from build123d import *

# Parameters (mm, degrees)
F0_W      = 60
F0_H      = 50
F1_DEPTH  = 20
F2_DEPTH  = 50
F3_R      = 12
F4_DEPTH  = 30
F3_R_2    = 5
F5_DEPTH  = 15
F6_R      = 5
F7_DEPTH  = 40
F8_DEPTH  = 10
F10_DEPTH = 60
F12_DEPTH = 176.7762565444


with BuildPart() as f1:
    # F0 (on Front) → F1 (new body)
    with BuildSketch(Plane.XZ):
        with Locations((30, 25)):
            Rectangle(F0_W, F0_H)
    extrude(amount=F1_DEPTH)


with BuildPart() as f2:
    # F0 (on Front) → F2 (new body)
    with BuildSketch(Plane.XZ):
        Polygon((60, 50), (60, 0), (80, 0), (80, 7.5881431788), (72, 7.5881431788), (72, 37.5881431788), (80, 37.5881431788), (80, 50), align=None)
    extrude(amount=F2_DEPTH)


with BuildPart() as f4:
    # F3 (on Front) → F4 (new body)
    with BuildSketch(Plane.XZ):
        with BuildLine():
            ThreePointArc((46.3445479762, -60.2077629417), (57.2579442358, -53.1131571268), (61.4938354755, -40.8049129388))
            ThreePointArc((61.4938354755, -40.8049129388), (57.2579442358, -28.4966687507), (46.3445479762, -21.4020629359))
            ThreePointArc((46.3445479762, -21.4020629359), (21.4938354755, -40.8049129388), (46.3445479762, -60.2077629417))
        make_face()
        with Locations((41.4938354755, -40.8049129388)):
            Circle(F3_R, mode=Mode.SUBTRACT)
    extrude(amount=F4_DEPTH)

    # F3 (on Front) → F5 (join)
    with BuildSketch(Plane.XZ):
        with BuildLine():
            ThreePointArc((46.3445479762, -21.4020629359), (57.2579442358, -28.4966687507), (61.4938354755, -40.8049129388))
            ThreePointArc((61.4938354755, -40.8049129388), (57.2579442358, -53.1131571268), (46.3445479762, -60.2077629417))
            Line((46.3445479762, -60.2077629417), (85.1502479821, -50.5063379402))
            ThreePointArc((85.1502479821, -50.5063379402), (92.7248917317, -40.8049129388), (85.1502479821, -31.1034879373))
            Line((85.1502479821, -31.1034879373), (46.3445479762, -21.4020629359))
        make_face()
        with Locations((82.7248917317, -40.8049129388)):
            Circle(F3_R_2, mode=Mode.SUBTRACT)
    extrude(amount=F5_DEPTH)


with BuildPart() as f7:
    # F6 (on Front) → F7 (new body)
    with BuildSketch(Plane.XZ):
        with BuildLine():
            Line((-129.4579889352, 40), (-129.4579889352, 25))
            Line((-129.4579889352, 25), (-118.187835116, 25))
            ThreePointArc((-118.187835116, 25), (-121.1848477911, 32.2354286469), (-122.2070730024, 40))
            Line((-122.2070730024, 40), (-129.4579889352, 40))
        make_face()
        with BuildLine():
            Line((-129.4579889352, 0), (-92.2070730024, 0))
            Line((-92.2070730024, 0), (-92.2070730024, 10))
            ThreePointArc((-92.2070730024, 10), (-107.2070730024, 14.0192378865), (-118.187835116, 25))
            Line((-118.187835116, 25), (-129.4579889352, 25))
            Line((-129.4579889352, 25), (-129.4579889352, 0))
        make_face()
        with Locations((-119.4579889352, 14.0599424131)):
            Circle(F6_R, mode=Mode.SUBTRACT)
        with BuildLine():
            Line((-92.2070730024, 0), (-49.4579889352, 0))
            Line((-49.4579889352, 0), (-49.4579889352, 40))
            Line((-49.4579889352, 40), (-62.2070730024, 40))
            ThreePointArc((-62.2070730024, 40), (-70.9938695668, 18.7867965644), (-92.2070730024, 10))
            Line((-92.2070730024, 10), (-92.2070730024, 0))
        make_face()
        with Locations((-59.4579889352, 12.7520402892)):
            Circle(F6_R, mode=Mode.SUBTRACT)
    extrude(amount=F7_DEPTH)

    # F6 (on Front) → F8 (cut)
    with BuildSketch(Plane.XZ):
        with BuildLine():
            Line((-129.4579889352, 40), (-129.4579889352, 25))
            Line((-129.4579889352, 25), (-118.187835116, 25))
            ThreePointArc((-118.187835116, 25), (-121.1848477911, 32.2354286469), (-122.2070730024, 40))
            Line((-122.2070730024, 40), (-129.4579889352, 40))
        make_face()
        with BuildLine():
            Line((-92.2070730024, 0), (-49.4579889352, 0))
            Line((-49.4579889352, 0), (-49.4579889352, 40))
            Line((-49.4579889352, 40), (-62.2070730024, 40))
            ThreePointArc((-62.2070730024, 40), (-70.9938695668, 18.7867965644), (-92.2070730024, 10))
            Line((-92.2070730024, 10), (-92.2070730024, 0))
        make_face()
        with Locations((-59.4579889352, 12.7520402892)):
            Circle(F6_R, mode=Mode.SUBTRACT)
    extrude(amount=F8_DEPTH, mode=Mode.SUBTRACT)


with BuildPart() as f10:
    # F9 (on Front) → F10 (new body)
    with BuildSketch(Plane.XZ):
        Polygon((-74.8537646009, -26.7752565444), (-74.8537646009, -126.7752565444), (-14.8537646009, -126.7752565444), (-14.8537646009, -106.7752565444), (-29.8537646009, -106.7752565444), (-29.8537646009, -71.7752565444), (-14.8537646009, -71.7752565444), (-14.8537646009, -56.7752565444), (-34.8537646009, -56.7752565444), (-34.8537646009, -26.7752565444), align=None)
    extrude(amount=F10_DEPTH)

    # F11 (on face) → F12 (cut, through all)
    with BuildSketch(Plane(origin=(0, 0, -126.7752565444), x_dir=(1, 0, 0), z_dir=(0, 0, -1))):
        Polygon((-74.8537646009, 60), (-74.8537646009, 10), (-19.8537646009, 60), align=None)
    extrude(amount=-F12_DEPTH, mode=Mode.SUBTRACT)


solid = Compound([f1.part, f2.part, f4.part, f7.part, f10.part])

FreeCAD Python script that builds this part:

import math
import FreeCAD as App
import Part
import Sketcher

V = App.Vector
Q = App.Units.Quantity

doc = App.newDocument("Part")
body = doc.addObject("PartDesign::Body", "Body")

# Sketch on XZ plane
sketch1 = doc.addObject("Sketcher::SketchObject", "Sketch")
body.addObject(sketch1)
sketch1.AttachmentSupport = (doc.XZ_Plane, [""])
sketch1.MapMode = "FlatFace"
sketch1.addGeometry([
    Part.LineSegment(V(0, 50, 0), V(0, 0, 0)),
    Part.LineSegment(V(0, 0, 0), V(60, 0, 0)),
    Part.LineSegment(V(60, 0, 0), V(60, 50, 0)),
    Part.LineSegment(V(60, 50, 0), V(0, 50, 0)),
], False)
sketch1.addConstraint([
    Sketcher.Constraint("Coincident", 0, 2, 1, 1),
    Sketcher.Constraint("Coincident", 1, 2, 2, 1),
    Sketcher.Constraint("Coincident", 2, 2, 3, 1),
    Sketcher.Constraint("Coincident", 3, 2, 0, 1),
    Sketcher.Constraint("Vertical", 0),
    Sketcher.Constraint("Horizontal", 1),
    Sketcher.Constraint("Vertical", 2),
    Sketcher.Constraint("Horizontal", 3),
    Sketcher.Constraint("Coincident", 0, 2, -1, 1),
    Sketcher.Constraint("DistanceX", 1, 1, 1, 2, Q("60 mm")),
    Sketcher.Constraint("DistanceY", 0, 2, 0, 1, Q("50 mm")),
])
pad1 = doc.addObject("PartDesign::Pad", "Pad")
body.addObject(pad1)
pad1.Profile = sketch1
pad1.Length = 20
body2 = doc.addObject("PartDesign::Body", "Body001")

# Sketch on XZ plane
sketch2 = doc.addObject("Sketcher::SketchObject", "Sketch001")
body2.addObject(sketch2)
sketch2.AttachmentSupport = (doc.getObject("XZ_Plane001"), [""])
sketch2.MapMode = "FlatFace"
sketch2.addGeometry([
    Part.LineSegment(V(60, 50, 0), V(60, 0, 0)),  # 0
    Part.LineSegment(V(60, 0, 0), V(80, 0, 0)),  # 1
    Part.LineSegment(V(80, 0, 0), V(80, 8, 0)),  # 2
    Part.LineSegment(V(80, 8, 0), V(72, 8, 0)),  # 3
    Part.LineSegment(V(72, 8, 0), V(72, 38, 0)),  # 4
    Part.LineSegment(V(72, 38, 0), V(80, 38, 0)),  # 5
    Part.LineSegment(V(80, 38, 0), V(80, 50, 0)),  # 6
    Part.LineSegment(V(80, 50, 0), V(60, 50, 0)),  # 7
], False)
sketch2.addConstraint([
    Sketcher.Constraint("Coincident", 0, 2, 1, 1),
    Sketcher.Constraint("Coincident", 1, 2, 2, 1),
    Sketcher.Constraint("Coincident", 2, 2, 3, 1),
    Sketcher.Constraint("Coincident", 3, 2, 4, 1),
    Sketcher.Constraint("Coincident", 4, 2, 5, 1),
    Sketcher.Constraint("Coincident", 5, 2, 6, 1),
    Sketcher.Constraint("Coincident", 6, 2, 7, 1),
    Sketcher.Constraint("Coincident", 7, 2, 0, 1),
    Sketcher.Constraint("Vertical", 0),
    Sketcher.Constraint("Horizontal", 1),
    Sketcher.Constraint("Vertical", 2),
    Sketcher.Constraint("Horizontal", 3),
    Sketcher.Constraint("Vertical", 4),
    Sketcher.Constraint("Horizontal", 5),
    Sketcher.Constraint("Vertical", 6),
    Sketcher.Constraint("Horizontal", 7),
    Sketcher.Constraint("PointOnObject", 0, 2, -1),
    Sketcher.Constraint("Vertical", 2, 2, 5, 2),
    Sketcher.Constraint("DistanceX", 1, 1, 1, 2, Q("20 mm")),
    Sketcher.Constraint("DistanceX", 3, 2, 3, 1, Q("8 mm")),
    Sketcher.Constraint("DistanceY", 0, 2, 0, 1, Q("50 mm")),
    Sketcher.Constraint("DistanceY", 4, 1, 4, 2, Q("30 mm")),
    Sketcher.Constraint("DistanceX", -1, 1, 0, 2, Q("60 mm")),
    Sketcher.Constraint("DistanceY", 2, 1, 2, 2, Q("7.588143 mm")),
])
pad2 = doc.addObject("PartDesign::Pad", "Pad001")
body2.addObject(pad2)
pad2.Profile = sketch2
pad2.Length = 50
body3 = doc.addObject("PartDesign::Body", "Body002")

# Sketch on XZ plane
sketch3 = doc.addObject("Sketcher::SketchObject", "Sketch002")
body3.addObject(sketch3)
sketch3.AttachmentSupport = (doc.getObject("XZ_Plane002"), [""])
sketch3.MapMode = "FlatFace"
sketch3.addGeometry([
    Part.ArcOfCircle(Part.Circle(V(41, -41, 0), V(0, 0, 1), 20), math.radians(-76), math.radians(0)),
    Part.ArcOfCircle(Part.Circle(V(41, -41, 0), V(0, 0, 1), 20), math.radians(0), math.radians(76)),
    Part.ArcOfCircle(Part.Circle(V(41, -41, 0), V(0, 0, 1), 20), math.radians(76), math.radians(284)),
    Part.Circle(V(41, -41, 0), V(0, 0, 1), 12),
], False)
sketch3.addConstraint([
    Sketcher.Constraint("Tangent", 0, 2, 1, 1),
    Sketcher.Constraint("Tangent", 1, 2, 2, 1),
    Sketcher.Constraint("Tangent", 2, 2, 0, 1),
    Sketcher.Constraint("Coincident", 3, 3, 0, 3),
    Sketcher.Constraint("Horizontal", 3, 3, 0, 2),
    Sketcher.Constraint("Vertical", 1, 2, 2, 2),
    Sketcher.Constraint("Diameter", 3, Q("24 mm")),
    Sketcher.Constraint("Radius", 0, Q("20 mm")),
    Sketcher.Constraint("DistanceY", 1, 3, 1, 2, Q("19.40285 mm")),
    Sketcher.Constraint("DistanceX", -1, 1, 0, 3, Q("41.493835 mm")),
    Sketcher.Constraint("DistanceY", 0, 3, -1, 1, Q("40.804913 mm")),
])
pad3 = doc.addObject("PartDesign::Pad", "Pad002")
body3.addObject(pad3)
pad3.Profile = sketch3
pad3.Length = 30

# Sketch on XZ plane
sketch4 = doc.addObject("Sketcher::SketchObject", "Sketch003")
body3.addObject(sketch4)
sketch4.AttachmentSupport = (doc.getObject("XZ_Plane002"), [""])
sketch4.MapMode = "FlatFace"
sketch4.addGeometry([
    Part.ArcOfCircle(Part.Circle(V(41, -41, 0), V(0, 0, 1), 20), math.radians(0), math.radians(76)),  # 0
    Part.ArcOfCircle(Part.Circle(V(41, -41, 0), V(0, 0, 1), 20), math.radians(-76), math.radians(0)),  # 1
    Part.LineSegment(V(46, -60, 0), V(85, -51, 0)),  # 2
    Part.ArcOfCircle(Part.Circle(V(83, -41, 0), V(0, 0, 1), 10), math.radians(-76), math.radians(76)),  # 3
    Part.LineSegment(V(85, -31, 0), V(46, -21, 0)),  # 4
    Part.Circle(V(83, -41, 0), V(0, 0, 1), 5),  # 5
], False)
sketch4.addConstraint([
    Sketcher.Constraint("Tangent", 0, 1, 1, 2),
    Sketcher.Constraint("Tangent", 1, 1, 2, 1),
    Sketcher.Constraint("Tangent", 2, 2, 3, 1),
    Sketcher.Constraint("Tangent", 3, 2, 4, 1),
    Sketcher.Constraint("Tangent", 4, 2, 0, 2),
    Sketcher.Constraint("Coincident", 5, 3, 3, 3),
    Sketcher.Constraint("Equal", 0, 1),
    Sketcher.Constraint("Horizontal", 1, 3, 3, 3),
    Sketcher.Constraint("Horizontal", 5, 3, 0, 1),
    Sketcher.Constraint("Diameter", 5, Q("10 mm")),
    Sketcher.Constraint("Radius", 0, Q("20 mm")),
    Sketcher.Constraint("Radius", 3, Q("10 mm")),
    Sketcher.Constraint("Distance", 2, Q("40 mm")),
    Sketcher.Constraint("DistanceX", -1, 1, 3, 3, Q("82.724892 mm")),
    Sketcher.Constraint("DistanceY", 0, 3, -1, 1, Q("40.804913 mm")),
])
pad4 = doc.addObject("PartDesign::Pad", "Pad003")
body3.addObject(pad4)
pad4.Profile = sketch4
pad4.Length = 15
body4 = doc.addObject("PartDesign::Body", "Body003")

# Sketch on XZ plane
sketch5 = doc.addObject("Sketcher::SketchObject", "Sketch004")
body4.addObject(sketch5)
sketch5.AttachmentSupport = (doc.getObject("XZ_Plane003"), [""])
sketch5.MapMode = "FlatFace"
sketch5.addGeometry([
    Part.LineSegment(V(-129, 40, 0), V(-129, 0, 0)),  # 0
    Part.LineSegment(V(-129, 0, 0), V(-49, 0, 0)),  # 1
    Part.LineSegment(V(-49, 0, 0), V(-49, 40, 0)),  # 2
    Part.LineSegment(V(-49, 40, 0), V(-62, 40, 0)),  # 3
    Part.ArcOfCircle(Part.Circle(V(-92, 40, 0), V(0, 0, 1), 30), math.radians(-90), math.radians(0)),  # 4
    Part.ArcOfCircle(Part.Circle(V(-92, 40, 0), V(0, 0, 1), 30), math.radians(-150), math.radians(-90)),  # 5
    Part.ArcOfCircle(Part.Circle(V(-92, 40, 0), V(0, 0, 1), 30), math.radians(180), math.radians(210)),  # 6
    Part.LineSegment(V(-122, 40, 0), V(-129, 40, 0)),  # 7
    Part.Circle(V(-59, 13, 0), V(0, 0, 1), 5),  # 8
    Part.Circle(V(-119, 14, 0), V(0, 0, 1), 5),  # 9
], False)
sketch5.addConstraint([
    Sketcher.Constraint("Coincident", 0, 2, 1, 1),
    Sketcher.Constraint("Coincident", 1, 2, 2, 1),
    Sketcher.Constraint("Coincident", 2, 2, 3, 1),
    Sketcher.Constraint("Coincident", 3, 2, 4, 2),
    Sketcher.Constraint("Tangent", 4, 1, 5, 2),
    Sketcher.Constraint("Tangent", 5, 1, 6, 2),
    Sketcher.Constraint("Coincident", 6, 1, 7, 1),
    Sketcher.Constraint("Coincident", 7, 2, 0, 1),
    Sketcher.Constraint("Vertical", 0),
    Sketcher.Constraint("Horizontal", 1),
    Sketcher.Constraint("Vertical", 2),
    Sketcher.Constraint("Horizontal", 3),
    Sketcher.Constraint("Horizontal", 7),
    Sketcher.Constraint("Coincident", 6, 3, 4, 3),
    Sketcher.Constraint("Equal", 8, 9),
    Sketcher.Constraint("PointOnObject", 0, 2, -1),
    Sketcher.Constraint("Horizontal", 6, 3, 2, 2),
    Sketcher.Constraint("Horizontal", 3, 2, 6, 1),
    Sketcher.Constraint("Vertical", 6, 3, 4, 1),
    Sketcher.Constraint("Diameter", 8, Q("10 mm")),
    Sketcher.Constraint("Radius", 4, Q("30 mm")),
    Sketcher.Constraint("DistanceX", 1, 1, 1, 2, Q("80 mm")),
    Sketcher.Constraint("DistanceY", 0, 2, 0, 1, Q("40 mm")),
    Sketcher.Constraint("DistanceY", -1, 1, 5, 1, Q("25 mm")),
    Sketcher.Constraint("DistanceX", 9, 3, 8, 3, Q("60 mm")),
    Sketcher.Constraint("DistanceX", 0, 2, 9, 3, Q("10 mm")),
    Sketcher.Constraint("DistanceX", 3, 2, 3, 1, Q("12.749084 mm")),
    Sketcher.Constraint("DistanceX", 8, 3, -1, 1, Q("59.457989 mm")),
    Sketcher.Constraint("DistanceY", -1, 1, 8, 3, Q("12.75204 mm")),
    Sketcher.Constraint("DistanceY", -1, 1, 9, 3, Q("14.059942 mm")),
])
pad5 = doc.addObject("PartDesign::Pad", "Pad004")
body4.addObject(pad5)
pad5.Profile = sketch5
pad5.Length = 40

# Sketch on XZ plane
sketch6 = doc.addObject("Sketcher::SketchObject", "Sketch005")
body4.addObject(sketch6)
sketch6.AttachmentSupport = (doc.getObject("XZ_Plane003"), [""])
sketch6.MapMode = "FlatFace"
sketch6.addGeometry([
    Part.LineSegment(V(-129, 40, 0), V(-129, 25, 0)),  # 0
    Part.LineSegment(V(-129, 25, 0), V(-118, 25, 0)),  # 1
    Part.ArcOfCircle(Part.Circle(V(-92, 40, 0), V(0, 0, 1), 30), math.radians(180), math.radians(210)),  # 2
    Part.LineSegment(V(-122, 40, 0), V(-129, 40, 0)),  # 3
    Part.LineSegment(V(-92, 0, 0), V(-49, 0, 0)),  # 4
    Part.LineSegment(V(-49, 0, 0), V(-49, 40, 0)),  # 5
    Part.LineSegment(V(-49, 40, 0), V(-62, 40, 0)),  # 6
    Part.ArcOfCircle(Part.Circle(V(-92, 40, 0), V(0, 0, 1), 30), math.radians(-90), math.radians(0)),  # 7
    Part.LineSegment(V(-92, 10, 0), V(-92, 0, 0)),  # 8
    Part.Circle(V(-59, 13, 0), V(0, 0, 1), 5),  # 9
], False)
sketch6.addConstraint([
    Sketcher.Constraint("Coincident", 0, 2, 1, 1),
    Sketcher.Constraint("Coincident", 1, 2, 2, 2),
    Sketcher.Constraint("Coincident", 2, 1, 3, 1),
    Sketcher.Constraint("Coincident", 3, 2, 0, 1),
    Sketcher.Constraint("Coincident", 4, 2, 5, 1),
    Sketcher.Constraint("Coincident", 5, 2, 6, 1),
    Sketcher.Constraint("Coincident", 6, 2, 7, 2),
    Sketcher.Constraint("Coincident", 7, 1, 8, 1),
    Sketcher.Constraint("Coincident", 8, 2, 4, 1),
    Sketcher.Constraint("Vertical", 0),
    Sketcher.Constraint("Horizontal", 1),
    Sketcher.Constraint("Horizontal", 3),
    Sketcher.Constraint("Horizontal", 4),
    Sketcher.Constraint("Vertical", 5),
    Sketcher.Constraint("Horizontal", 6),
    Sketcher.Constraint("Vertical", 8),
    Sketcher.Constraint("Coincident", 7, 3, 2, 3),
    Sketcher.Constraint("Equal", 2, 7),
    Sketcher.Constraint("PointOnObject", 4, 2, -1),
    Sketcher.Constraint("Horizontal", 7, 3, 2, 1),
    Sketcher.Constraint("Horizontal", 3, 2, 5, 2),
    Sketcher.Constraint("Vertical", 2, 3, 7, 1),
    Sketcher.Constraint("Diameter", 9, Q("10 mm")),
    Sketcher.Constraint("Radius", 2, Q("30 mm")),
    Sketcher.Constraint("DistanceY", 0, 2, 0, 1, Q("15 mm")),
    Sketcher.Constraint("DistanceY", 5, 1, 5, 2, Q("40 mm")),
    Sketcher.Constraint("DistanceX", 0, 2, 9, 3, Q("70 mm")),
    Sketcher.Constraint("DistanceX", 9, 3, 4, 2, Q("10 mm")),
    Sketcher.Constraint("DistanceX", 1, 1, 1, 2, Q("11.270154 mm")),
    Sketcher.Constraint("DistanceX", 9, 3, -1, 1, Q("59.457989 mm")),
    Sketcher.Constraint("DistanceY", -1, 1, 9, 3, Q("12.75204 mm")),
])
pocket1 = doc.addObject("PartDesign::Pocket", "Pocket")
body4.addObject(pocket1)
pocket1.Profile = sketch6
pocket1.Length = 10
pocket1.Reversed = True
body5 = doc.addObject("PartDesign::Body", "Body004")

# Sketch on XZ plane
sketch7 = doc.addObject("Sketcher::SketchObject", "Sketch006")
body5.addObject(sketch7)
sketch7.AttachmentSupport = (doc.getObject("XZ_Plane004"), [""])
sketch7.MapMode = "FlatFace"
sketch7.addGeometry([
    Part.LineSegment(V(-75, -27, 0), V(-75, -127, 0)),  # 0
    Part.LineSegment(V(-75, -127, 0), V(-15, -127, 0)),  # 1
    Part.LineSegment(V(-15, -127, 0), V(-15, -107, 0)),  # 2
    Part.LineSegment(V(-15, -107, 0), V(-30, -107, 0)),  # 3
    Part.LineSegment(V(-30, -107, 0), V(-30, -72, 0)),  # 4
    Part.LineSegment(V(-30, -72, 0), V(-15, -72, 0)),  # 5
    Part.LineSegment(V(-15, -72, 0), V(-15, -57, 0)),  # 6
    Part.LineSegment(V(-15, -57, 0), V(-35, -57, 0)),  # 7
    Part.LineSegment(V(-35, -57, 0), V(-35, -27, 0)),  # 8
    Part.LineSegment(V(-35, -27, 0), V(-75, -27, 0)),  # 9
], False)
sketch7.addConstraint([
    Sketcher.Constraint("Coincident", 0, 2, 1, 1),
    Sketcher.Constraint("Coincident", 1, 2, 2, 1),
    Sketcher.Constraint("Coincident", 2, 2, 3, 1),
    Sketcher.Constraint("Coincident", 3, 2, 4, 1),
    Sketcher.Constraint("Coincident", 4, 2, 5, 1),
    Sketcher.Constraint("Coincident", 5, 2, 6, 1),
    Sketcher.Constraint("Coincident", 6, 2, 7, 1),
    Sketcher.Constraint("Coincident", 7, 2, 8, 1),
    Sketcher.Constraint("Coincident", 8, 2, 9, 1),
    Sketcher.Constraint("Coincident", 9, 2, 0, 1),
    Sketcher.Constraint("Vertical", 0),
    Sketcher.Constraint("Horizontal", 1),
    Sketcher.Constraint("Vertical", 2),
    Sketcher.Constraint("Horizontal", 3),
    Sketcher.Constraint("Vertical", 4),
    Sketcher.Constraint("Horizontal", 5),
    Sketcher.Constraint("Vertical", 6),
    Sketcher.Constraint("Horizontal", 7),
    Sketcher.Constraint("Vertical", 8),
    Sketcher.Constraint("Horizontal", 9),
    Sketcher.Constraint("Vertical", 2, 2, 5, 2),
    Sketcher.Constraint("Equal", 7, 2),
    Sketcher.Constraint("Equal", 5, 6),
    Sketcher.Constraint("DistanceX", 1, 1, 1, 2, Q("60 mm")),
    Sketcher.Constraint("DistanceX", 3, 2, 3, 1, Q("15 mm")),
    Sketcher.Constraint("DistanceX", 7, 2, 7, 1, Q("20 mm")),
    Sketcher.Constraint("DistanceY", 0, 2, 0, 1, Q("100 mm")),
    Sketcher.Constraint("DistanceY", 4, 1, 4, 2, Q("35 mm")),
    Sketcher.Constraint("DistanceX", 0, 2, -1, 1, Q("74.853765 mm")),
    Sketcher.Constraint("DistanceY", 0, 2, -1, 1, Q("126.775257 mm")),
])
pad6 = doc.addObject("PartDesign::Pad", "Pad005")
body5.addObject(pad6)
pad6.Profile = sketch7
pad6.Length = 60

# Sketch on XY plane
sketch8 = doc.addObject("Sketcher::SketchObject", "Sketch007")
body5.addObject(sketch8)
sketch8.AttachmentSupport = (doc.getObject("XY_Plane004"), [""])
sketch8.MapMode = "FlatFace"
sketch8.AttachmentOffset = App.Placement(V(0, 0, -126.775257), App.Rotation())
sketch8.addGeometry([
    Part.LineSegment(V(-75, -60, 0), V(-75, -10, 0)),
    Part.LineSegment(V(-75, -10, 0), V(-20, -60, 0)),
    Part.LineSegment(V(-20, -60, 0), V(-75, -60, 0)),
], False)
sketch8.addConstraint([
    Sketcher.Constraint("Coincident", 0, 2, 1, 1),
    Sketcher.Constraint("Coincident", 1, 2, 2, 1),
    Sketcher.Constraint("Coincident", 2, 2, 0, 1),
    Sketcher.Constraint("Vertical", 0),
    Sketcher.Constraint("Horizontal", 2),
    Sketcher.Constraint("DistanceX", 2, 2, 2, 1, Q("55 mm")),
    Sketcher.Constraint("DistanceY", 0, 1, 0, 2, Q("50 mm")),
    Sketcher.Constraint("DistanceY", 0, 2, -1, 1, Q("10 mm")),
    Sketcher.Constraint("DistanceX", 0, 2, -1, 1, Q("74.853765 mm")),
])
pocket2 = doc.addObject("PartDesign::Pocket", "Pocket001")
body5.addObject(pocket2)
pocket2.Profile = sketch8
pocket2.Type = "ThroughAll"
pocket2.Reversed = True

doc.recompute()
